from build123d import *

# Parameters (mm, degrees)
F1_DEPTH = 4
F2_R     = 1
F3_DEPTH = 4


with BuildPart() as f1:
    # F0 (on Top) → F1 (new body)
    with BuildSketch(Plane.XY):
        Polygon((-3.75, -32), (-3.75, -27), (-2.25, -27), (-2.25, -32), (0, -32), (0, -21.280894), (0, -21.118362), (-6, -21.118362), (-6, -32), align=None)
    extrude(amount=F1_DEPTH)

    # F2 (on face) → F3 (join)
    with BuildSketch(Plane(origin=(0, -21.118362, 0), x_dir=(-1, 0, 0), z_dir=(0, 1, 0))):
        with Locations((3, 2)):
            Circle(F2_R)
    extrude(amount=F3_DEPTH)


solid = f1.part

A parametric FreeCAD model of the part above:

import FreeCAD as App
import Part
import Sketcher

V = App.Vector


def add_polygon(sketch, points):
    """Adds a closed chain of lines whose ends are joined by coincident constraints."""
    first, n = sketch.GeometryCount, len(points)
    for a, b in zip(points, points[1:] + points[:1]):
        sketch.addGeometry(Part.LineSegment(App.Vector(*a, 0), App.Vector(*b, 0)), False)
    for i in range(n):
        sketch.addConstraint(Sketcher.Constraint("Coincident", first + i, 2, first + (i + 1) % n, 1))

doc = App.newDocument("Part")
params = doc.addObject("Spreadsheet::Sheet", "Params")
for row, (alias, value) in enumerate([
    ("sketch1_width", "6 mm"),
    ("sketch1_height", "5 mm"),
    ("sketch1_width2", "1.5 mm"),
    ("pad1_length", "4 mm"),
    ("sketch2_diameter", "2 mm"),
    ("pad2_length", "4 mm"),
], start=1):
    params.set(f"A{row}", alias)
    params.set(f"B{row}", "=" + value)
    params.setAlias(f"B{row}", alias)

body = doc.addObject("PartDesign::Body", "Body")

sketch1 = body.newObject("Sketcher::SketchObject", "Sketch")
sketch1.AttachmentSupport = (doc.getObject("XY_Plane"), [""])
sketch1.MapMode = "FlatFace"
add_polygon(sketch1, [(-3.8, -32), (-3.8, -27), (-2.2, -27), (-2.2, -32), (0, -32), (0, -21.1), (-6, -21.1), (-6, -32)])
sketch1.addConstraint([
    Sketcher.Constraint("Vertical", 0),
    Sketcher.Constraint("Horizontal", 1),
    Sketcher.Constraint("Vertical", 2),
    Sketcher.Constraint("Horizontal", 3),
    Sketcher.Constraint("Vertical", 4),
    Sketcher.Constraint("Horizontal", 5),
    Sketcher.Constraint("Vertical", 6),
    Sketcher.Constraint("Horizontal", 7),
    Sketcher.Constraint("PointOnObject", 3, 2, -2),
    Sketcher.Constraint("Horizontal", 3, 2, 6, 2),
    Sketcher.Constraint("Equal", 3, 7),
    Sketcher.Constraint("DistanceX", 5, 2, 5, 1, 6.0),
    Sketcher.Constraint("DistanceY", 0, 1, 0, 2, 5.0),
    Sketcher.Constraint("DistanceX", 1, 1, 1, 2, 1.5),
    Sketcher.Constraint("DistanceY", 0, 2, -1, 1, 27.0),
    Sketcher.Constraint("DistanceY", 4, 1, 4, 2, 10.881638),
])
sketch1.setExpression("Constraints[19]", "Params.sketch1_width")
sketch1.setExpression("Constraints[20]", "Params.sketch1_height")
sketch1.setExpression("Constraints[21]", "Params.sketch1_width2")
pad1 = body.newObject("PartDesign::Pad", "Pad")
pad1.Profile = sketch1
pad1.setExpression("Length", "Params.pad1_length")

sketch2 = body.newObject("Sketcher::SketchObject", "Sketch001")
sketch2.AttachmentSupport = (doc.getObject("XZ_Plane"), [""])
sketch2.MapMode = "FlatFace"
sketch2.AttachmentOffset = App.Placement(V(0, 0, 21.118362), App.Rotation())
sketch2.addGeometry(Part.Circle(V(-3, 2, 0), V(0, 0, 1), 1), False)
sketch2.addConstraint([
    Sketcher.Constraint("Diameter", 0, 2.0),
    Sketcher.Constraint("DistanceX", 0, 3, -1, 1, 3.0),
    Sketcher.Constraint("DistanceY", -1, 1, 0, 3, 2.0),
])
sketch2.setExpression("Constraints[0]", "Params.sketch2_diameter")
pad2 = body.newObject("PartDesign::Pad", "Pad001")
pad2.Profile = sketch2
pad2.setExpression("Length", "Params.pad2_length")
pad2.Reversed = True

doc.recompute()
